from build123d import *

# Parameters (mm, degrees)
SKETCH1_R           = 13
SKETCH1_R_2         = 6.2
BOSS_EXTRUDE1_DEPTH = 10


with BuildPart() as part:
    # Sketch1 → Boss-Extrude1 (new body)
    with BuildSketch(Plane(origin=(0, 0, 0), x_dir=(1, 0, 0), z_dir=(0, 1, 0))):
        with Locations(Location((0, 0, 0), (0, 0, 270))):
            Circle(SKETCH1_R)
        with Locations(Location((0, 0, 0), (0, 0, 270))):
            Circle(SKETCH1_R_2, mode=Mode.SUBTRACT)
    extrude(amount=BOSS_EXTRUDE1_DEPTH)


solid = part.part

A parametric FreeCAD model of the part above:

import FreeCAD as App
import Part
import Sketcher
Q = App.Units.Quantity

doc = App.newDocument("Part")
body = doc.addObject("PartDesign::Body", "Body")

sketch1 = doc.addObject("Sketcher::SketchObject", "Sketch")
body.addObject(sketch1)
sketch1.AttachmentSupport = (doc.XZ_Plane, [""])
sketch1.MapMode = "FlatFace"
sketch1.addGeometry(Part.Circle(App.Vector(0, 0, 0), App.Vector(0, 0, 1), 13), False)
sketch1.addGeometry(Part.Circle(App.Vector(0, 0, 0), App.Vector(0, 0, 1), 6.2), False)
sketch1.addConstraint(Sketcher.Constraint("Coincident", 0, 3, -1, 1))
sketch1.addConstraint(Sketcher.Constraint("Coincident", 1, 3, -1, 1))
sketch1.addConstraint(Sketcher.Constraint("Diameter", 0, Q("26 mm")))
sketch1.addConstraint(Sketcher.Constraint("Diameter", 1, Q("12.4 mm")))
pad1 = doc.addObject("PartDesign::Pad", "Pad")
body.addObject(pad1)
pad1.Profile = sketch1
pad1.Length = 10
pad1.Reversed = True

doc.recompute()
